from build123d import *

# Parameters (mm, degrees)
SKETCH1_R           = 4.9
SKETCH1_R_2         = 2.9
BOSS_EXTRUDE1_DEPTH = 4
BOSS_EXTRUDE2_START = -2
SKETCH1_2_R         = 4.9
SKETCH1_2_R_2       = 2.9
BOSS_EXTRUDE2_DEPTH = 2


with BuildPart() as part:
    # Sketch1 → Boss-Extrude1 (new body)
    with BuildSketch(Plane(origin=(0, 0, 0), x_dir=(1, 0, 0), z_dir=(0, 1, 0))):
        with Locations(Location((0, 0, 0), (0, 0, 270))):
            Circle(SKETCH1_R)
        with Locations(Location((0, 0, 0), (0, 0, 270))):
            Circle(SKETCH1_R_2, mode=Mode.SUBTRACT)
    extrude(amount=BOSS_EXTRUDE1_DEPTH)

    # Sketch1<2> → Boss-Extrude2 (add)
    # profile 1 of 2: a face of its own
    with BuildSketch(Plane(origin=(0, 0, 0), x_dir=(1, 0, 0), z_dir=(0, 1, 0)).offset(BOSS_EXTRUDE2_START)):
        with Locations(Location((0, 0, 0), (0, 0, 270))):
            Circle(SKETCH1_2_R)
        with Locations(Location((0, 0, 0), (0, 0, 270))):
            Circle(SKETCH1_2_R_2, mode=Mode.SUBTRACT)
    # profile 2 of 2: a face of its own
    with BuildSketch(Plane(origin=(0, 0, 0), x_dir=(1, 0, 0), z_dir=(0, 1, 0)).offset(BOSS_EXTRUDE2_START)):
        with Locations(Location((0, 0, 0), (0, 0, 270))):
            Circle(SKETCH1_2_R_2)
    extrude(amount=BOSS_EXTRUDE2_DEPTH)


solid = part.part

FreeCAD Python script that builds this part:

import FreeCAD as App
import Part
import Sketcher
from FreeCAD import Vector

doc = App.newDocument("Part")
body = doc.addObject("PartDesign::Body", "Body")

# Sketch on XZ plane
sketch1 = body.newObject("Sketcher::SketchObject", "Sketch")
sketch1.AttachmentSupport = (doc.getObject("XZ_Plane"), [""])
sketch1.MapMode = "FlatFace"
sketch1.addGeometry([
    Part.Circle(Vector(0, 0, 0), Vector(0, 0, 1), 4.9),
    Part.Circle(Vector(0, 0, 0), Vector(0, 0, 1), 2.9),
], False)
sketch1.addConstraint([
    Sketcher.Constraint("Coincident", 0, 3, -1, 1),
    Sketcher.Constraint("Coincident", 1, 3, -1, 1),
    Sketcher.Constraint("Diameter", 0, 9.8),
    Sketcher.Constraint("Diameter", 1, 5.8),
])
pad1 = body.newObject("PartDesign::Pad", "Pad")
pad1.Profile = sketch1
pad1.Length = 4
pad1.Reversed = True

# Sketch on XZ plane
sketch2 = body.newObject("Sketcher::SketchObject", "Sketch001")
sketch2.AttachmentSupport = (doc.getObject("XZ_Plane"), [""])
sketch2.MapMode = "FlatFace"
sketch2.AttachmentOffset = App.Placement(Vector(0, 0, 2), App.Rotation())
sketch2.addGeometry(Part.Circle(Vector(0, 0, 0), Vector(0, 0, 1), 4.9), False)
sketch2.addConstraint([
    Sketcher.Constraint("Coincident", 0, 3, -1, 1),
    Sketcher.Constraint("Diameter", 0, 9.8),
])
pad2 = body.newObject("PartDesign::Pad", "Pad001")
pad2.Profile = sketch2
pad2.Length = 2
pad2.Reversed = True

doc.recompute()
